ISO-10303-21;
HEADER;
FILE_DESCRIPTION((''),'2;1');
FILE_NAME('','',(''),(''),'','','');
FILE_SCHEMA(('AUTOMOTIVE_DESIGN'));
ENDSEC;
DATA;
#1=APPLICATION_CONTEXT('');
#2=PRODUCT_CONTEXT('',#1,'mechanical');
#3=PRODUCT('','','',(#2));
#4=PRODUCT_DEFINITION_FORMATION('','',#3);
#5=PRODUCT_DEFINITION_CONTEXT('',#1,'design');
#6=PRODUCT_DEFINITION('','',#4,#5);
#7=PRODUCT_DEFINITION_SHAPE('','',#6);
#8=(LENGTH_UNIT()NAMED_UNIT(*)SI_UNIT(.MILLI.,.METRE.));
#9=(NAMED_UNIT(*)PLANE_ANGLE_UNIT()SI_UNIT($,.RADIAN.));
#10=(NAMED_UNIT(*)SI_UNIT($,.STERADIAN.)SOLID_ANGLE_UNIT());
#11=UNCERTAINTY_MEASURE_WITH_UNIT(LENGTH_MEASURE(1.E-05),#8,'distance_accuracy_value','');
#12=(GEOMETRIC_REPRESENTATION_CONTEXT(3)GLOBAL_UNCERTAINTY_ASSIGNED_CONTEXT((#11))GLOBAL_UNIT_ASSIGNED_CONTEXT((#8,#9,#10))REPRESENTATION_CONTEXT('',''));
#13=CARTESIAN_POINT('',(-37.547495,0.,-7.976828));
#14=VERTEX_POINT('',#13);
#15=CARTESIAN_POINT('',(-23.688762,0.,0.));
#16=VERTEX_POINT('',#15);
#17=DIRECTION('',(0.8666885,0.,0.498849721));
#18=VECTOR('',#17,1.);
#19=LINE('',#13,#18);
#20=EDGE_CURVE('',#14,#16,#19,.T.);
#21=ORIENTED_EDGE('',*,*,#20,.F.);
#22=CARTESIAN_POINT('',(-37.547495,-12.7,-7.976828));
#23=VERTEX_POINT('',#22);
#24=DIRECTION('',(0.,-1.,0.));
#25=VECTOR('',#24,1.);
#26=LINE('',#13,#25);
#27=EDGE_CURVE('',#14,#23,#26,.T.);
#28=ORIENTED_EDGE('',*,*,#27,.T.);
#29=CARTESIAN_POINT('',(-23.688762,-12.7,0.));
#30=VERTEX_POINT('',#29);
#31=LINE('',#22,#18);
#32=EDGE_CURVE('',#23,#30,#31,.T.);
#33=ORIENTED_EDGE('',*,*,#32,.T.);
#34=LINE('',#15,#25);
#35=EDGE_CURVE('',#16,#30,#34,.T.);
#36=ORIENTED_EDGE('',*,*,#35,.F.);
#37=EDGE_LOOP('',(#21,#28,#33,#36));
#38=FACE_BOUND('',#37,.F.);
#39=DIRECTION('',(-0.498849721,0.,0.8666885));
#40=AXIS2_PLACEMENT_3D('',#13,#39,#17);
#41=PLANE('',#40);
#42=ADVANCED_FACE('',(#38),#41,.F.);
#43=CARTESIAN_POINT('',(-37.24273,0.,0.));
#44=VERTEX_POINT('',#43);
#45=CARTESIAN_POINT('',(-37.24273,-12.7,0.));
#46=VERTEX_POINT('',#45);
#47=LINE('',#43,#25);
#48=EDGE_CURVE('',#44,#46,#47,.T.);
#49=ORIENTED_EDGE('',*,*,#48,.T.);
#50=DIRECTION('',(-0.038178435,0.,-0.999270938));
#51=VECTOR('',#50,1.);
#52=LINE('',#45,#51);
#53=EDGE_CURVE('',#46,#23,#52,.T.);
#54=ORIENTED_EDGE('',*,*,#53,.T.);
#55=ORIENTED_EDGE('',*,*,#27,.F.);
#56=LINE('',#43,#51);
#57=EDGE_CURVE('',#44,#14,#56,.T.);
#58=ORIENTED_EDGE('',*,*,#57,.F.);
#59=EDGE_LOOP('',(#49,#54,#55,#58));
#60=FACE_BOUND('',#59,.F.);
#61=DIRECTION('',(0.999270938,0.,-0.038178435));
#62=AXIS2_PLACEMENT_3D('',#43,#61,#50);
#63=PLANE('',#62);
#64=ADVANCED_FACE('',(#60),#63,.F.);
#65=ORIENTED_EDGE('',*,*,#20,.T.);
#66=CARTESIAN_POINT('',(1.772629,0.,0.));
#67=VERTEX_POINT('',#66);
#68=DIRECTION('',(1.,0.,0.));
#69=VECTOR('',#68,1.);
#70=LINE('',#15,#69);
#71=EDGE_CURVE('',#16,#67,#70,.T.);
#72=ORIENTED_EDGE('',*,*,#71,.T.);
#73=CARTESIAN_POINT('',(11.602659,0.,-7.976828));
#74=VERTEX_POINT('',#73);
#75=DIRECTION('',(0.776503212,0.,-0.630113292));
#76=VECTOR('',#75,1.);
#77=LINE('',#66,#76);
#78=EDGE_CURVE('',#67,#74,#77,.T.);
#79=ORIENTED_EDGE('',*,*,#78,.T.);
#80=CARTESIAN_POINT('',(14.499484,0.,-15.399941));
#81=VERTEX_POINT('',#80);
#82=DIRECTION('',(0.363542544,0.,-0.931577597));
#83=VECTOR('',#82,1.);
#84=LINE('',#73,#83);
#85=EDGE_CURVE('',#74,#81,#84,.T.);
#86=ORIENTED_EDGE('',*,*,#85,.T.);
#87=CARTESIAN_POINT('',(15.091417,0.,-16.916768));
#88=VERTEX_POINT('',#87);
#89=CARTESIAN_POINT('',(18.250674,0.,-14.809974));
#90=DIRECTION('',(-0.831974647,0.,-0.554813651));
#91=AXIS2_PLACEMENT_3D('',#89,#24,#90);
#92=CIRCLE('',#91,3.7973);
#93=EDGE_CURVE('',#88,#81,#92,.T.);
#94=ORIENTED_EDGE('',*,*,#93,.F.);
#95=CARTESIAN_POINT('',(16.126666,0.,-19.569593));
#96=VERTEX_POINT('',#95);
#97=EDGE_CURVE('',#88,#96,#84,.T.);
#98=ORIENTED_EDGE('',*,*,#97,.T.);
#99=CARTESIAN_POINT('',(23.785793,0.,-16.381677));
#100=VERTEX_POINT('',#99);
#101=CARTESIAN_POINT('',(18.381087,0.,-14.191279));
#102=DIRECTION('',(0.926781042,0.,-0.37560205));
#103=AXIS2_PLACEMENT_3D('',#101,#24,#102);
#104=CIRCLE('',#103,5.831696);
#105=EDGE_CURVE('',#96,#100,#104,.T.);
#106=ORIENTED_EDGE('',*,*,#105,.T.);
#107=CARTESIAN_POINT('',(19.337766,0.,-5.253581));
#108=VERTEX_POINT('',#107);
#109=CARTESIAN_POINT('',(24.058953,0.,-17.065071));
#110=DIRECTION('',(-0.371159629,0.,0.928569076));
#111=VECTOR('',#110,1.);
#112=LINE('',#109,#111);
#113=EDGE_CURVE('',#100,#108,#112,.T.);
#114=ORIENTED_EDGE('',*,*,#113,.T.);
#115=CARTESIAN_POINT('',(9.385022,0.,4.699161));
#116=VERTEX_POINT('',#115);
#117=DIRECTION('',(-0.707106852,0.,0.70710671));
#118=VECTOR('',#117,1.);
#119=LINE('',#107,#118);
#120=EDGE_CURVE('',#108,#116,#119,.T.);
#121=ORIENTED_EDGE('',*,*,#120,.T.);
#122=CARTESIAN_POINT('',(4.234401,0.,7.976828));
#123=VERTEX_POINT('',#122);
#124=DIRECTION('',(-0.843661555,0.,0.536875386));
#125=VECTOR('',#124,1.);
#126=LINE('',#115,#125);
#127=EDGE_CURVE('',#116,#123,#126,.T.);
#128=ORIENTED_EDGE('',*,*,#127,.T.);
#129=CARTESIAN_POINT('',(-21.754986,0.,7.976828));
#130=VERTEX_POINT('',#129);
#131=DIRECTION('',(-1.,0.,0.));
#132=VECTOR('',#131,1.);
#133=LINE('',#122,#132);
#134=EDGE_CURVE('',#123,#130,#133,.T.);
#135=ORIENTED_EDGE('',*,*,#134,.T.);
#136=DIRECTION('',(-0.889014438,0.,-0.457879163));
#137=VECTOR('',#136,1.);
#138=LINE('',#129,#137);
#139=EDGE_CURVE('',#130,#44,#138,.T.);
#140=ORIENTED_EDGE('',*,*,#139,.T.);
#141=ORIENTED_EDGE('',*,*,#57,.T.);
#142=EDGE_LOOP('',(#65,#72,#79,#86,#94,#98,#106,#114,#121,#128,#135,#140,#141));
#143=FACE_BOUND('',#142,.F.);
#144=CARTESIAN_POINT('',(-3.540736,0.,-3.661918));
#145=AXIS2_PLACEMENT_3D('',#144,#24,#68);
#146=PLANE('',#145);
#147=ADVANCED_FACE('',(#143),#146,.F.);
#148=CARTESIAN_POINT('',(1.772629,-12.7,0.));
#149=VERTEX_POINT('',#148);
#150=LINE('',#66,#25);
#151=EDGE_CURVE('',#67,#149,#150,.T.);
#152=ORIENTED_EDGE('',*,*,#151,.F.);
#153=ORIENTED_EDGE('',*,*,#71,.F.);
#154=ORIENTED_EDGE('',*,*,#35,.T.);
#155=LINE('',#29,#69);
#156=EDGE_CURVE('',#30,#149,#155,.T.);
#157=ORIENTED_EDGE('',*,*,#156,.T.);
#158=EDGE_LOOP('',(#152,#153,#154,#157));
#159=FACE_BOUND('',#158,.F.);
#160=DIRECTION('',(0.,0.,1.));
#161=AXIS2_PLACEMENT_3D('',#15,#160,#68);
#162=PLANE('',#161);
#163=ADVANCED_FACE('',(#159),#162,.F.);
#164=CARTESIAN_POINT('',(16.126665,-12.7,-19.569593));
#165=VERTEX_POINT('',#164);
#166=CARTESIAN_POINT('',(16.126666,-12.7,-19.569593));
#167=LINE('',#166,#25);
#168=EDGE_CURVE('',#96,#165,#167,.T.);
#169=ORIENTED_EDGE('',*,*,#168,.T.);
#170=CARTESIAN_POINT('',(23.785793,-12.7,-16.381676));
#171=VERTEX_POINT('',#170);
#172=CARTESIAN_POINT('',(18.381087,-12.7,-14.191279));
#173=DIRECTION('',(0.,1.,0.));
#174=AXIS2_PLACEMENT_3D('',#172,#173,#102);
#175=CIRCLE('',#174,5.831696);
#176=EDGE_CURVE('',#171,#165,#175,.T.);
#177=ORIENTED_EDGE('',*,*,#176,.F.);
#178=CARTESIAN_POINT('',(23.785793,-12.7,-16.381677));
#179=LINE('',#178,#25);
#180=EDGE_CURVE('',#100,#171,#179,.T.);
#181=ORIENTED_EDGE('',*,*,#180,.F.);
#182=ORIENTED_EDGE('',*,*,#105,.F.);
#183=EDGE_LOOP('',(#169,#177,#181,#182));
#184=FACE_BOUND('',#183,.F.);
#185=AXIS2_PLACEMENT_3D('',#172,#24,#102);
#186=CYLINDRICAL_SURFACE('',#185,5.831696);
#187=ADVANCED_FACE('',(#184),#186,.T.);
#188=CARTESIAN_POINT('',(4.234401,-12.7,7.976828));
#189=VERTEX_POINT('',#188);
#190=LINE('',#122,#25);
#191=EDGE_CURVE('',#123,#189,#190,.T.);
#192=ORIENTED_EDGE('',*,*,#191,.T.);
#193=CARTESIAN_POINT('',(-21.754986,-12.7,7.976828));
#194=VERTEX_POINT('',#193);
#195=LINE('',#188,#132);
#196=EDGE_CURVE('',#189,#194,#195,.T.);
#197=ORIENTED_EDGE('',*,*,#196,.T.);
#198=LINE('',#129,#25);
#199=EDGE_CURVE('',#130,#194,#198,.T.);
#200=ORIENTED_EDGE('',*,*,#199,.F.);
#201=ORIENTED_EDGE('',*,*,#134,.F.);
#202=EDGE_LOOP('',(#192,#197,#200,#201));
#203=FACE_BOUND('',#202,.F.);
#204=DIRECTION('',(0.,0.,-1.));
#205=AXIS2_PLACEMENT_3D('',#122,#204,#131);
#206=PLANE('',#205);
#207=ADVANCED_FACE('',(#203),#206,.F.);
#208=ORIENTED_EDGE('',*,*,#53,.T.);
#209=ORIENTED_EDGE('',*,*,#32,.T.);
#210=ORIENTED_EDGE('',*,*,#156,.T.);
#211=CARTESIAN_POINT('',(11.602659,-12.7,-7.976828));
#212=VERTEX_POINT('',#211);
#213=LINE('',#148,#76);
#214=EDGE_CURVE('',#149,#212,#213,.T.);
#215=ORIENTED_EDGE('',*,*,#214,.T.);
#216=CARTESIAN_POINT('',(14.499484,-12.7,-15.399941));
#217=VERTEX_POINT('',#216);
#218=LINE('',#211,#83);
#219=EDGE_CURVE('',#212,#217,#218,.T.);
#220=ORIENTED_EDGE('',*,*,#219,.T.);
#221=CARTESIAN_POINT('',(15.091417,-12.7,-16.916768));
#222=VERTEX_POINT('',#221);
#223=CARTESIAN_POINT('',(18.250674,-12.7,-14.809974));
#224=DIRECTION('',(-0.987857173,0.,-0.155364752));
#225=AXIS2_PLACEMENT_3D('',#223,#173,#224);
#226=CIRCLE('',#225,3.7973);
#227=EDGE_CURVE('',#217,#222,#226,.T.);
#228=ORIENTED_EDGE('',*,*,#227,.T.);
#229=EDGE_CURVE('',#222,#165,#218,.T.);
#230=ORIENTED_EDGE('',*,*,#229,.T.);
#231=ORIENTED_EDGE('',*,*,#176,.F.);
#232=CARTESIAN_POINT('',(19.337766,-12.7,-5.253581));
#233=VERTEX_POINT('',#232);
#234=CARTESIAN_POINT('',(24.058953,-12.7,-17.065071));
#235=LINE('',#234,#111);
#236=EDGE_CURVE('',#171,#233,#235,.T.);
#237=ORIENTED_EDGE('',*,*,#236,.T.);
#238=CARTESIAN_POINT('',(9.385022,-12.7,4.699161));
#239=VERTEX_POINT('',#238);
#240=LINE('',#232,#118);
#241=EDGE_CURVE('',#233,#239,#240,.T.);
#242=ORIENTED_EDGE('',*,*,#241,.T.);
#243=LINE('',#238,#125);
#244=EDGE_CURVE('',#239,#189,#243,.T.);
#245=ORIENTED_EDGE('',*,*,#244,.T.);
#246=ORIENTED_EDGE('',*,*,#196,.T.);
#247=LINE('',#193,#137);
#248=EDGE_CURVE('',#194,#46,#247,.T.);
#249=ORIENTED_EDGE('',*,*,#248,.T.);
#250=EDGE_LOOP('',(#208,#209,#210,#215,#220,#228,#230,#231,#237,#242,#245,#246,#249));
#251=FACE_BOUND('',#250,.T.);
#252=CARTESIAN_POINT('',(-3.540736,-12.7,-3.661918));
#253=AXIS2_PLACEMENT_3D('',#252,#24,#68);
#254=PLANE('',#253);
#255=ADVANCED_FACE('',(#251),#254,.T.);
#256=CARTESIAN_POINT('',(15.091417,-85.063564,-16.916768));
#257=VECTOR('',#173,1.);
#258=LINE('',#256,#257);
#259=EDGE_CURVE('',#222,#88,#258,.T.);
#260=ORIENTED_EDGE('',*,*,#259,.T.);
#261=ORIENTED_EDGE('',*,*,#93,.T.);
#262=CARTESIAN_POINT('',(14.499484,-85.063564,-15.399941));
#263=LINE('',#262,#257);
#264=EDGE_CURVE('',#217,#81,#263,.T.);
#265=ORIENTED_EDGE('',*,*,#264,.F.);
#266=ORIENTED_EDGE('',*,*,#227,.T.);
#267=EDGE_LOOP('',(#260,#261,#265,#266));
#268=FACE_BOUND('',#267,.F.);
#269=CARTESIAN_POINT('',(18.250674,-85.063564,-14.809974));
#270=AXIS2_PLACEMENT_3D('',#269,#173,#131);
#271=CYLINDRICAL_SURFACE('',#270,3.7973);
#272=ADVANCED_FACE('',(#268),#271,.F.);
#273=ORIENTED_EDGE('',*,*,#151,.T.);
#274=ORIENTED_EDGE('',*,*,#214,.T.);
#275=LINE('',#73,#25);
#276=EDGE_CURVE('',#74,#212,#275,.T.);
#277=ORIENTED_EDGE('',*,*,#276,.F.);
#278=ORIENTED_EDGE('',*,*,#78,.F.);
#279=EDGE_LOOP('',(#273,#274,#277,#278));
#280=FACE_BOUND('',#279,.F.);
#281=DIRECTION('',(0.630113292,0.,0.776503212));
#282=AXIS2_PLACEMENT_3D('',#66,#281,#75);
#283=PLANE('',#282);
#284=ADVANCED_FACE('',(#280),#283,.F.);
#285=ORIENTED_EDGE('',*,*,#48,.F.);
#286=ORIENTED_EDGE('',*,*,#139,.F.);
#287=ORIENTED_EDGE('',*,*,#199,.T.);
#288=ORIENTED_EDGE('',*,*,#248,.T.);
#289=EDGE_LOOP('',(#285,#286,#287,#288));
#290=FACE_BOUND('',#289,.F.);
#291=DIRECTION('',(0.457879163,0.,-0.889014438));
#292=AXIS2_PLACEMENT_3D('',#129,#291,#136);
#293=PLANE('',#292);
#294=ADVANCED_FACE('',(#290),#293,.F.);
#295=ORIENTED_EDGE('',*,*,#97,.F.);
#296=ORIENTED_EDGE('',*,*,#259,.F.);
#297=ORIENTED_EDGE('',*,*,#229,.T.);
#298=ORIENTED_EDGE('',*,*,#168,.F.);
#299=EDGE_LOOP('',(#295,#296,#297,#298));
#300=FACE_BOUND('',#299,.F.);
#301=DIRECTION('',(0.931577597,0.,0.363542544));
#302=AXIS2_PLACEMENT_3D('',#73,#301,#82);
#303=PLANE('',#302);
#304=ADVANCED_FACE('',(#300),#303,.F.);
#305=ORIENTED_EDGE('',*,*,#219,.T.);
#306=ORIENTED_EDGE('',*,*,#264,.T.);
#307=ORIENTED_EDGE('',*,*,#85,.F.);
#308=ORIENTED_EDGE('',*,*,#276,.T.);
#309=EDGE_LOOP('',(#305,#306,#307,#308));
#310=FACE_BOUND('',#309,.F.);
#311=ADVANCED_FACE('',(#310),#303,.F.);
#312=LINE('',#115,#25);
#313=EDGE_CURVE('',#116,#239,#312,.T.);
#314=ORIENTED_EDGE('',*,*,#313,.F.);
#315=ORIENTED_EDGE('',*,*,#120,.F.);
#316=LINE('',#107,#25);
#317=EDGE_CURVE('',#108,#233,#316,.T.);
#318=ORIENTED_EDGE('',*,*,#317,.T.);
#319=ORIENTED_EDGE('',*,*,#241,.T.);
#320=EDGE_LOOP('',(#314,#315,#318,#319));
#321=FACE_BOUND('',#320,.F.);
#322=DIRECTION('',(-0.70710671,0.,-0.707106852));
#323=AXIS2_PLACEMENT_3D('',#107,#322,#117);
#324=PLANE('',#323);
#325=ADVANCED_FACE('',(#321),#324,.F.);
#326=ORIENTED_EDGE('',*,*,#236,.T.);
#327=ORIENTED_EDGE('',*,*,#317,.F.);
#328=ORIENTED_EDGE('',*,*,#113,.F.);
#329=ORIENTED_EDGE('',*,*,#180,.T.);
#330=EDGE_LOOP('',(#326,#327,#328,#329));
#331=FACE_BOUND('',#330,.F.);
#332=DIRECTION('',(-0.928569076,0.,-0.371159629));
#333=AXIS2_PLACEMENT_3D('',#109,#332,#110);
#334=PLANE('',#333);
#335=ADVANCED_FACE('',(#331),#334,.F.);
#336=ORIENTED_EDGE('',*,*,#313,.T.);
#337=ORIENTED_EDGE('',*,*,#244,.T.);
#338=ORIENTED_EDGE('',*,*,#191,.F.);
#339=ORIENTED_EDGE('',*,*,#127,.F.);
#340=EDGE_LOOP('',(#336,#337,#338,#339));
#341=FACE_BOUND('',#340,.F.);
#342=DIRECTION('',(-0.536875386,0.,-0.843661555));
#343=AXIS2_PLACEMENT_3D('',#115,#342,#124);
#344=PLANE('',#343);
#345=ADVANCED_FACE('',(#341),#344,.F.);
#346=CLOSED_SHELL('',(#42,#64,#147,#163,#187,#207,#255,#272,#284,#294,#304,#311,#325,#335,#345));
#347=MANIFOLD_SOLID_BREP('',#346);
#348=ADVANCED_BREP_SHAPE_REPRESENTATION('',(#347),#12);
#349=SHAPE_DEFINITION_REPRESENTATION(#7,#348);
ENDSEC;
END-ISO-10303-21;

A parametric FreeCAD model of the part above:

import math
import FreeCAD as App
import Part
import Sketcher
from FreeCAD import Vector
Q = App.Units.Quantity


def add_polygon(sketch, points):
    """Adds a closed chain of lines whose ends are joined by coincident constraints."""
    first, n = sketch.GeometryCount, len(points)
    for a, b in zip(points, points[1:] + points[:1]):
        sketch.addGeometry(Part.LineSegment(App.Vector(*a, 0), App.Vector(*b, 0)), False)
    for i in range(n):
        sketch.addConstraint(Sketcher.Constraint("Coincident", first + i, 2, first + (i + 1) % n, 1))

doc = App.newDocument("Part")
body = doc.addObject("PartDesign::Body", "Body")

sketch1 = doc.addObject("Sketcher::SketchObject", "Sketch")
body.addObject(sketch1)
sketch1.AttachmentSupport = (doc.XZ_Plane, [""])
sketch1.MapMode = "FlatFace"
add_polygon(sketch1, [(-23.7, 0), (1.8, 0), (11.6, -8), (19.3, -27.8), (23.6, -21.1), (24.1, -17.1), (19.3, -5.3), (9.4, 4.7), (4.2, 8), (-21.8, 8), (-37.2, 0), (-37.5, -8)])
sketch1.addConstraint([
    Sketcher.Constraint("Horizontal", 0),
    Sketcher.Constraint("Horizontal", 8),
    Sketcher.Constraint("PointOnObject", 0, 2, -1),
    Sketcher.Constraint("PointOnObject", 9, 2, -1),
    Sketcher.Constraint("Perpendicular", 3, 7),
    Sketcher.Constraint("Horizontal", 1, 2, 10, 2),
    Sketcher.Constraint("Vertical", 2, 2, 5, 2),
    Sketcher.Constraint("Angle", 6, Q("135.000006 deg")),
    Sketcher.Constraint("Distance", 1, Q("0.4983998 in")),
    Sketcher.Constraint("Distance", 3, Q("0.3132 in")),
    Sketcher.Constraint("Distance", 5, 12.720098),
    Sketcher.Constraint("DistanceX", 0, 1, 0, 2, 25.461391),
    Sketcher.Constraint("DistanceX", -1, 1, 7, 2, 4.234401),
    Sketcher.Constraint("DistanceY", 4, 2, 7, 2, 25.041899),
    Sketcher.Constraint("Distance", 7, 6.10508),
    Sketcher.Constraint("Distance", 9, 17.421251),
    Sketcher.Constraint("DistanceX", 8, 2, 8, 1, 25.989387),
    Sketcher.Constraint("DistanceX", -1, 1, 0, 2, 1.772629),
    Sketcher.Constraint("DistanceX", -1, 1, 1, 2, 11.602659),
    Sketcher.Constraint("DistanceX", -1, 1, 3, 2, 23.608761),
    Sketcher.Constraint("DistanceY", 4, 2, -1, 1, 17.065071),
    Sketcher.Constraint("DistanceY", 5, 2, -1, 1, 5.253581),
    Sketcher.Constraint("DistanceX", 10, 2, 8, 2, 15.792509),
    Sketcher.Constraint("Distance", 2, 21.277034),
])
pad1 = doc.addObject("PartDesign::Pad", "Pad")
body.addObject(pad1)
pad1.Profile = sketch1
pad1.Length = Q("0.5 in")

sketch2 = doc.addObject("Sketcher::SketchObject", "Sketch001")
body.addObject(sketch2)
sketch2.AttachmentSupport = (doc.XZ_Plane, [""])
sketch2.MapMode = "FlatFace"
sketch2.AttachmentOffset = App.Placement(Vector(0, 0, 0.5 * 25.4), App.Rotation())
sketch2.addGeometry(Part.Circle(Vector(18.3, -14.8, 0), Vector(0, 0, 1), 3.8), False)
sketch2.addConstraint([
    Sketcher.Constraint("Diameter", 0, Q("0.299 in")),
    Sketcher.Constraint("DistanceX", -1, 1, 0, 3, 18.250674),
    Sketcher.Constraint("DistanceY", 0, 3, -1, 1, 14.809974),
])
doc.recompute()
hole = doc.addObject("PartDesign::Hole", "Hole")
body.addObject(hole)
hole.Profile = sketch2
hole.ThreadType = "None"
hole.Diameter = Q("0.299 in")
hole.DepthType = "ThroughAll"

sketch3 = doc.addObject("Sketcher::SketchObject", "Sketch002")
body.addObject(sketch3)
sketch3.AttachmentSupport = (doc.XZ_Plane, [""])
sketch3.MapMode = "FlatFace"
sketch3.AttachmentOffset = App.Placement(Vector(0, 0, 0.5 * 25.4), App.Rotation())
sketch3.addGeometry([
    Part.ArcOfCircle(Part.Circle(Vector(18.4, -14.2, 0), Vector(0, 0, 1), 5.8), math.radians(-113), math.radians(-22)),
    Part.LineSegment(Vector(16.1, -19.6, 0), Vector(19.3, -27.8, 0)),
    Part.LineSegment(Vector(19.3, -27.8, 0), Vector(23.6, -21.1, 0)),
    Part.LineSegment(Vector(23.6, -21.1, 0), Vector(24.1, -17.1, 0)),
    Part.LineSegment(Vector(24.1, -17.1, 0), Vector(23.8, -16.4, 0)),
], False)
sketch3.addConstraint([
    Sketcher.Constraint("Coincident", 0, 1, 1, 1),
    Sketcher.Constraint("Coincident", 1, 2, 2, 1),
    Sketcher.Constraint("Coincident", 2, 2, 3, 1),
    Sketcher.Constraint("Coincident", 3, 2, 4, 1),
    Sketcher.Constraint("Coincident", 4, 2, 0, 2),
    Sketcher.Constraint("Distance", 2, Q("0.3132 in")),
    Sketcher.Constraint("Radius", 0, 5.831696),
    Sketcher.Constraint("DistanceX", 0, 1, 1, 2, 3.211101),
    Sketcher.Constraint("DistanceY", 0, 3, -1, 1, 14.191279),
    Sketcher.Constraint("DistanceX", -1, 1, 2, 2, 23.608761),
    Sketcher.Constraint("DistanceY", 3, 2, -1, 1, 17.065071),
    Sketcher.Constraint("DistanceX", 0, 3, 1, 2, 0.956679),
    Sketcher.Constraint("DistanceY", 2, 2, 0, 1, 1.51688),
    Sketcher.Constraint("DistanceX", 2, 2, 3, 2, 0.450192),
    Sketcher.Constraint("DistanceX", 4, 2, 3, 2, 0.27316),
    Sketcher.Constraint("DistanceY", 1, 2, 4, 2, 11.41636),
])
pocket1 = doc.addObject("PartDesign::Pocket", "Pocket")
body.addObject(pocket1)
pocket1.Profile = sketch3
pocket1.Length = Q("1 in")

doc.recompute()
